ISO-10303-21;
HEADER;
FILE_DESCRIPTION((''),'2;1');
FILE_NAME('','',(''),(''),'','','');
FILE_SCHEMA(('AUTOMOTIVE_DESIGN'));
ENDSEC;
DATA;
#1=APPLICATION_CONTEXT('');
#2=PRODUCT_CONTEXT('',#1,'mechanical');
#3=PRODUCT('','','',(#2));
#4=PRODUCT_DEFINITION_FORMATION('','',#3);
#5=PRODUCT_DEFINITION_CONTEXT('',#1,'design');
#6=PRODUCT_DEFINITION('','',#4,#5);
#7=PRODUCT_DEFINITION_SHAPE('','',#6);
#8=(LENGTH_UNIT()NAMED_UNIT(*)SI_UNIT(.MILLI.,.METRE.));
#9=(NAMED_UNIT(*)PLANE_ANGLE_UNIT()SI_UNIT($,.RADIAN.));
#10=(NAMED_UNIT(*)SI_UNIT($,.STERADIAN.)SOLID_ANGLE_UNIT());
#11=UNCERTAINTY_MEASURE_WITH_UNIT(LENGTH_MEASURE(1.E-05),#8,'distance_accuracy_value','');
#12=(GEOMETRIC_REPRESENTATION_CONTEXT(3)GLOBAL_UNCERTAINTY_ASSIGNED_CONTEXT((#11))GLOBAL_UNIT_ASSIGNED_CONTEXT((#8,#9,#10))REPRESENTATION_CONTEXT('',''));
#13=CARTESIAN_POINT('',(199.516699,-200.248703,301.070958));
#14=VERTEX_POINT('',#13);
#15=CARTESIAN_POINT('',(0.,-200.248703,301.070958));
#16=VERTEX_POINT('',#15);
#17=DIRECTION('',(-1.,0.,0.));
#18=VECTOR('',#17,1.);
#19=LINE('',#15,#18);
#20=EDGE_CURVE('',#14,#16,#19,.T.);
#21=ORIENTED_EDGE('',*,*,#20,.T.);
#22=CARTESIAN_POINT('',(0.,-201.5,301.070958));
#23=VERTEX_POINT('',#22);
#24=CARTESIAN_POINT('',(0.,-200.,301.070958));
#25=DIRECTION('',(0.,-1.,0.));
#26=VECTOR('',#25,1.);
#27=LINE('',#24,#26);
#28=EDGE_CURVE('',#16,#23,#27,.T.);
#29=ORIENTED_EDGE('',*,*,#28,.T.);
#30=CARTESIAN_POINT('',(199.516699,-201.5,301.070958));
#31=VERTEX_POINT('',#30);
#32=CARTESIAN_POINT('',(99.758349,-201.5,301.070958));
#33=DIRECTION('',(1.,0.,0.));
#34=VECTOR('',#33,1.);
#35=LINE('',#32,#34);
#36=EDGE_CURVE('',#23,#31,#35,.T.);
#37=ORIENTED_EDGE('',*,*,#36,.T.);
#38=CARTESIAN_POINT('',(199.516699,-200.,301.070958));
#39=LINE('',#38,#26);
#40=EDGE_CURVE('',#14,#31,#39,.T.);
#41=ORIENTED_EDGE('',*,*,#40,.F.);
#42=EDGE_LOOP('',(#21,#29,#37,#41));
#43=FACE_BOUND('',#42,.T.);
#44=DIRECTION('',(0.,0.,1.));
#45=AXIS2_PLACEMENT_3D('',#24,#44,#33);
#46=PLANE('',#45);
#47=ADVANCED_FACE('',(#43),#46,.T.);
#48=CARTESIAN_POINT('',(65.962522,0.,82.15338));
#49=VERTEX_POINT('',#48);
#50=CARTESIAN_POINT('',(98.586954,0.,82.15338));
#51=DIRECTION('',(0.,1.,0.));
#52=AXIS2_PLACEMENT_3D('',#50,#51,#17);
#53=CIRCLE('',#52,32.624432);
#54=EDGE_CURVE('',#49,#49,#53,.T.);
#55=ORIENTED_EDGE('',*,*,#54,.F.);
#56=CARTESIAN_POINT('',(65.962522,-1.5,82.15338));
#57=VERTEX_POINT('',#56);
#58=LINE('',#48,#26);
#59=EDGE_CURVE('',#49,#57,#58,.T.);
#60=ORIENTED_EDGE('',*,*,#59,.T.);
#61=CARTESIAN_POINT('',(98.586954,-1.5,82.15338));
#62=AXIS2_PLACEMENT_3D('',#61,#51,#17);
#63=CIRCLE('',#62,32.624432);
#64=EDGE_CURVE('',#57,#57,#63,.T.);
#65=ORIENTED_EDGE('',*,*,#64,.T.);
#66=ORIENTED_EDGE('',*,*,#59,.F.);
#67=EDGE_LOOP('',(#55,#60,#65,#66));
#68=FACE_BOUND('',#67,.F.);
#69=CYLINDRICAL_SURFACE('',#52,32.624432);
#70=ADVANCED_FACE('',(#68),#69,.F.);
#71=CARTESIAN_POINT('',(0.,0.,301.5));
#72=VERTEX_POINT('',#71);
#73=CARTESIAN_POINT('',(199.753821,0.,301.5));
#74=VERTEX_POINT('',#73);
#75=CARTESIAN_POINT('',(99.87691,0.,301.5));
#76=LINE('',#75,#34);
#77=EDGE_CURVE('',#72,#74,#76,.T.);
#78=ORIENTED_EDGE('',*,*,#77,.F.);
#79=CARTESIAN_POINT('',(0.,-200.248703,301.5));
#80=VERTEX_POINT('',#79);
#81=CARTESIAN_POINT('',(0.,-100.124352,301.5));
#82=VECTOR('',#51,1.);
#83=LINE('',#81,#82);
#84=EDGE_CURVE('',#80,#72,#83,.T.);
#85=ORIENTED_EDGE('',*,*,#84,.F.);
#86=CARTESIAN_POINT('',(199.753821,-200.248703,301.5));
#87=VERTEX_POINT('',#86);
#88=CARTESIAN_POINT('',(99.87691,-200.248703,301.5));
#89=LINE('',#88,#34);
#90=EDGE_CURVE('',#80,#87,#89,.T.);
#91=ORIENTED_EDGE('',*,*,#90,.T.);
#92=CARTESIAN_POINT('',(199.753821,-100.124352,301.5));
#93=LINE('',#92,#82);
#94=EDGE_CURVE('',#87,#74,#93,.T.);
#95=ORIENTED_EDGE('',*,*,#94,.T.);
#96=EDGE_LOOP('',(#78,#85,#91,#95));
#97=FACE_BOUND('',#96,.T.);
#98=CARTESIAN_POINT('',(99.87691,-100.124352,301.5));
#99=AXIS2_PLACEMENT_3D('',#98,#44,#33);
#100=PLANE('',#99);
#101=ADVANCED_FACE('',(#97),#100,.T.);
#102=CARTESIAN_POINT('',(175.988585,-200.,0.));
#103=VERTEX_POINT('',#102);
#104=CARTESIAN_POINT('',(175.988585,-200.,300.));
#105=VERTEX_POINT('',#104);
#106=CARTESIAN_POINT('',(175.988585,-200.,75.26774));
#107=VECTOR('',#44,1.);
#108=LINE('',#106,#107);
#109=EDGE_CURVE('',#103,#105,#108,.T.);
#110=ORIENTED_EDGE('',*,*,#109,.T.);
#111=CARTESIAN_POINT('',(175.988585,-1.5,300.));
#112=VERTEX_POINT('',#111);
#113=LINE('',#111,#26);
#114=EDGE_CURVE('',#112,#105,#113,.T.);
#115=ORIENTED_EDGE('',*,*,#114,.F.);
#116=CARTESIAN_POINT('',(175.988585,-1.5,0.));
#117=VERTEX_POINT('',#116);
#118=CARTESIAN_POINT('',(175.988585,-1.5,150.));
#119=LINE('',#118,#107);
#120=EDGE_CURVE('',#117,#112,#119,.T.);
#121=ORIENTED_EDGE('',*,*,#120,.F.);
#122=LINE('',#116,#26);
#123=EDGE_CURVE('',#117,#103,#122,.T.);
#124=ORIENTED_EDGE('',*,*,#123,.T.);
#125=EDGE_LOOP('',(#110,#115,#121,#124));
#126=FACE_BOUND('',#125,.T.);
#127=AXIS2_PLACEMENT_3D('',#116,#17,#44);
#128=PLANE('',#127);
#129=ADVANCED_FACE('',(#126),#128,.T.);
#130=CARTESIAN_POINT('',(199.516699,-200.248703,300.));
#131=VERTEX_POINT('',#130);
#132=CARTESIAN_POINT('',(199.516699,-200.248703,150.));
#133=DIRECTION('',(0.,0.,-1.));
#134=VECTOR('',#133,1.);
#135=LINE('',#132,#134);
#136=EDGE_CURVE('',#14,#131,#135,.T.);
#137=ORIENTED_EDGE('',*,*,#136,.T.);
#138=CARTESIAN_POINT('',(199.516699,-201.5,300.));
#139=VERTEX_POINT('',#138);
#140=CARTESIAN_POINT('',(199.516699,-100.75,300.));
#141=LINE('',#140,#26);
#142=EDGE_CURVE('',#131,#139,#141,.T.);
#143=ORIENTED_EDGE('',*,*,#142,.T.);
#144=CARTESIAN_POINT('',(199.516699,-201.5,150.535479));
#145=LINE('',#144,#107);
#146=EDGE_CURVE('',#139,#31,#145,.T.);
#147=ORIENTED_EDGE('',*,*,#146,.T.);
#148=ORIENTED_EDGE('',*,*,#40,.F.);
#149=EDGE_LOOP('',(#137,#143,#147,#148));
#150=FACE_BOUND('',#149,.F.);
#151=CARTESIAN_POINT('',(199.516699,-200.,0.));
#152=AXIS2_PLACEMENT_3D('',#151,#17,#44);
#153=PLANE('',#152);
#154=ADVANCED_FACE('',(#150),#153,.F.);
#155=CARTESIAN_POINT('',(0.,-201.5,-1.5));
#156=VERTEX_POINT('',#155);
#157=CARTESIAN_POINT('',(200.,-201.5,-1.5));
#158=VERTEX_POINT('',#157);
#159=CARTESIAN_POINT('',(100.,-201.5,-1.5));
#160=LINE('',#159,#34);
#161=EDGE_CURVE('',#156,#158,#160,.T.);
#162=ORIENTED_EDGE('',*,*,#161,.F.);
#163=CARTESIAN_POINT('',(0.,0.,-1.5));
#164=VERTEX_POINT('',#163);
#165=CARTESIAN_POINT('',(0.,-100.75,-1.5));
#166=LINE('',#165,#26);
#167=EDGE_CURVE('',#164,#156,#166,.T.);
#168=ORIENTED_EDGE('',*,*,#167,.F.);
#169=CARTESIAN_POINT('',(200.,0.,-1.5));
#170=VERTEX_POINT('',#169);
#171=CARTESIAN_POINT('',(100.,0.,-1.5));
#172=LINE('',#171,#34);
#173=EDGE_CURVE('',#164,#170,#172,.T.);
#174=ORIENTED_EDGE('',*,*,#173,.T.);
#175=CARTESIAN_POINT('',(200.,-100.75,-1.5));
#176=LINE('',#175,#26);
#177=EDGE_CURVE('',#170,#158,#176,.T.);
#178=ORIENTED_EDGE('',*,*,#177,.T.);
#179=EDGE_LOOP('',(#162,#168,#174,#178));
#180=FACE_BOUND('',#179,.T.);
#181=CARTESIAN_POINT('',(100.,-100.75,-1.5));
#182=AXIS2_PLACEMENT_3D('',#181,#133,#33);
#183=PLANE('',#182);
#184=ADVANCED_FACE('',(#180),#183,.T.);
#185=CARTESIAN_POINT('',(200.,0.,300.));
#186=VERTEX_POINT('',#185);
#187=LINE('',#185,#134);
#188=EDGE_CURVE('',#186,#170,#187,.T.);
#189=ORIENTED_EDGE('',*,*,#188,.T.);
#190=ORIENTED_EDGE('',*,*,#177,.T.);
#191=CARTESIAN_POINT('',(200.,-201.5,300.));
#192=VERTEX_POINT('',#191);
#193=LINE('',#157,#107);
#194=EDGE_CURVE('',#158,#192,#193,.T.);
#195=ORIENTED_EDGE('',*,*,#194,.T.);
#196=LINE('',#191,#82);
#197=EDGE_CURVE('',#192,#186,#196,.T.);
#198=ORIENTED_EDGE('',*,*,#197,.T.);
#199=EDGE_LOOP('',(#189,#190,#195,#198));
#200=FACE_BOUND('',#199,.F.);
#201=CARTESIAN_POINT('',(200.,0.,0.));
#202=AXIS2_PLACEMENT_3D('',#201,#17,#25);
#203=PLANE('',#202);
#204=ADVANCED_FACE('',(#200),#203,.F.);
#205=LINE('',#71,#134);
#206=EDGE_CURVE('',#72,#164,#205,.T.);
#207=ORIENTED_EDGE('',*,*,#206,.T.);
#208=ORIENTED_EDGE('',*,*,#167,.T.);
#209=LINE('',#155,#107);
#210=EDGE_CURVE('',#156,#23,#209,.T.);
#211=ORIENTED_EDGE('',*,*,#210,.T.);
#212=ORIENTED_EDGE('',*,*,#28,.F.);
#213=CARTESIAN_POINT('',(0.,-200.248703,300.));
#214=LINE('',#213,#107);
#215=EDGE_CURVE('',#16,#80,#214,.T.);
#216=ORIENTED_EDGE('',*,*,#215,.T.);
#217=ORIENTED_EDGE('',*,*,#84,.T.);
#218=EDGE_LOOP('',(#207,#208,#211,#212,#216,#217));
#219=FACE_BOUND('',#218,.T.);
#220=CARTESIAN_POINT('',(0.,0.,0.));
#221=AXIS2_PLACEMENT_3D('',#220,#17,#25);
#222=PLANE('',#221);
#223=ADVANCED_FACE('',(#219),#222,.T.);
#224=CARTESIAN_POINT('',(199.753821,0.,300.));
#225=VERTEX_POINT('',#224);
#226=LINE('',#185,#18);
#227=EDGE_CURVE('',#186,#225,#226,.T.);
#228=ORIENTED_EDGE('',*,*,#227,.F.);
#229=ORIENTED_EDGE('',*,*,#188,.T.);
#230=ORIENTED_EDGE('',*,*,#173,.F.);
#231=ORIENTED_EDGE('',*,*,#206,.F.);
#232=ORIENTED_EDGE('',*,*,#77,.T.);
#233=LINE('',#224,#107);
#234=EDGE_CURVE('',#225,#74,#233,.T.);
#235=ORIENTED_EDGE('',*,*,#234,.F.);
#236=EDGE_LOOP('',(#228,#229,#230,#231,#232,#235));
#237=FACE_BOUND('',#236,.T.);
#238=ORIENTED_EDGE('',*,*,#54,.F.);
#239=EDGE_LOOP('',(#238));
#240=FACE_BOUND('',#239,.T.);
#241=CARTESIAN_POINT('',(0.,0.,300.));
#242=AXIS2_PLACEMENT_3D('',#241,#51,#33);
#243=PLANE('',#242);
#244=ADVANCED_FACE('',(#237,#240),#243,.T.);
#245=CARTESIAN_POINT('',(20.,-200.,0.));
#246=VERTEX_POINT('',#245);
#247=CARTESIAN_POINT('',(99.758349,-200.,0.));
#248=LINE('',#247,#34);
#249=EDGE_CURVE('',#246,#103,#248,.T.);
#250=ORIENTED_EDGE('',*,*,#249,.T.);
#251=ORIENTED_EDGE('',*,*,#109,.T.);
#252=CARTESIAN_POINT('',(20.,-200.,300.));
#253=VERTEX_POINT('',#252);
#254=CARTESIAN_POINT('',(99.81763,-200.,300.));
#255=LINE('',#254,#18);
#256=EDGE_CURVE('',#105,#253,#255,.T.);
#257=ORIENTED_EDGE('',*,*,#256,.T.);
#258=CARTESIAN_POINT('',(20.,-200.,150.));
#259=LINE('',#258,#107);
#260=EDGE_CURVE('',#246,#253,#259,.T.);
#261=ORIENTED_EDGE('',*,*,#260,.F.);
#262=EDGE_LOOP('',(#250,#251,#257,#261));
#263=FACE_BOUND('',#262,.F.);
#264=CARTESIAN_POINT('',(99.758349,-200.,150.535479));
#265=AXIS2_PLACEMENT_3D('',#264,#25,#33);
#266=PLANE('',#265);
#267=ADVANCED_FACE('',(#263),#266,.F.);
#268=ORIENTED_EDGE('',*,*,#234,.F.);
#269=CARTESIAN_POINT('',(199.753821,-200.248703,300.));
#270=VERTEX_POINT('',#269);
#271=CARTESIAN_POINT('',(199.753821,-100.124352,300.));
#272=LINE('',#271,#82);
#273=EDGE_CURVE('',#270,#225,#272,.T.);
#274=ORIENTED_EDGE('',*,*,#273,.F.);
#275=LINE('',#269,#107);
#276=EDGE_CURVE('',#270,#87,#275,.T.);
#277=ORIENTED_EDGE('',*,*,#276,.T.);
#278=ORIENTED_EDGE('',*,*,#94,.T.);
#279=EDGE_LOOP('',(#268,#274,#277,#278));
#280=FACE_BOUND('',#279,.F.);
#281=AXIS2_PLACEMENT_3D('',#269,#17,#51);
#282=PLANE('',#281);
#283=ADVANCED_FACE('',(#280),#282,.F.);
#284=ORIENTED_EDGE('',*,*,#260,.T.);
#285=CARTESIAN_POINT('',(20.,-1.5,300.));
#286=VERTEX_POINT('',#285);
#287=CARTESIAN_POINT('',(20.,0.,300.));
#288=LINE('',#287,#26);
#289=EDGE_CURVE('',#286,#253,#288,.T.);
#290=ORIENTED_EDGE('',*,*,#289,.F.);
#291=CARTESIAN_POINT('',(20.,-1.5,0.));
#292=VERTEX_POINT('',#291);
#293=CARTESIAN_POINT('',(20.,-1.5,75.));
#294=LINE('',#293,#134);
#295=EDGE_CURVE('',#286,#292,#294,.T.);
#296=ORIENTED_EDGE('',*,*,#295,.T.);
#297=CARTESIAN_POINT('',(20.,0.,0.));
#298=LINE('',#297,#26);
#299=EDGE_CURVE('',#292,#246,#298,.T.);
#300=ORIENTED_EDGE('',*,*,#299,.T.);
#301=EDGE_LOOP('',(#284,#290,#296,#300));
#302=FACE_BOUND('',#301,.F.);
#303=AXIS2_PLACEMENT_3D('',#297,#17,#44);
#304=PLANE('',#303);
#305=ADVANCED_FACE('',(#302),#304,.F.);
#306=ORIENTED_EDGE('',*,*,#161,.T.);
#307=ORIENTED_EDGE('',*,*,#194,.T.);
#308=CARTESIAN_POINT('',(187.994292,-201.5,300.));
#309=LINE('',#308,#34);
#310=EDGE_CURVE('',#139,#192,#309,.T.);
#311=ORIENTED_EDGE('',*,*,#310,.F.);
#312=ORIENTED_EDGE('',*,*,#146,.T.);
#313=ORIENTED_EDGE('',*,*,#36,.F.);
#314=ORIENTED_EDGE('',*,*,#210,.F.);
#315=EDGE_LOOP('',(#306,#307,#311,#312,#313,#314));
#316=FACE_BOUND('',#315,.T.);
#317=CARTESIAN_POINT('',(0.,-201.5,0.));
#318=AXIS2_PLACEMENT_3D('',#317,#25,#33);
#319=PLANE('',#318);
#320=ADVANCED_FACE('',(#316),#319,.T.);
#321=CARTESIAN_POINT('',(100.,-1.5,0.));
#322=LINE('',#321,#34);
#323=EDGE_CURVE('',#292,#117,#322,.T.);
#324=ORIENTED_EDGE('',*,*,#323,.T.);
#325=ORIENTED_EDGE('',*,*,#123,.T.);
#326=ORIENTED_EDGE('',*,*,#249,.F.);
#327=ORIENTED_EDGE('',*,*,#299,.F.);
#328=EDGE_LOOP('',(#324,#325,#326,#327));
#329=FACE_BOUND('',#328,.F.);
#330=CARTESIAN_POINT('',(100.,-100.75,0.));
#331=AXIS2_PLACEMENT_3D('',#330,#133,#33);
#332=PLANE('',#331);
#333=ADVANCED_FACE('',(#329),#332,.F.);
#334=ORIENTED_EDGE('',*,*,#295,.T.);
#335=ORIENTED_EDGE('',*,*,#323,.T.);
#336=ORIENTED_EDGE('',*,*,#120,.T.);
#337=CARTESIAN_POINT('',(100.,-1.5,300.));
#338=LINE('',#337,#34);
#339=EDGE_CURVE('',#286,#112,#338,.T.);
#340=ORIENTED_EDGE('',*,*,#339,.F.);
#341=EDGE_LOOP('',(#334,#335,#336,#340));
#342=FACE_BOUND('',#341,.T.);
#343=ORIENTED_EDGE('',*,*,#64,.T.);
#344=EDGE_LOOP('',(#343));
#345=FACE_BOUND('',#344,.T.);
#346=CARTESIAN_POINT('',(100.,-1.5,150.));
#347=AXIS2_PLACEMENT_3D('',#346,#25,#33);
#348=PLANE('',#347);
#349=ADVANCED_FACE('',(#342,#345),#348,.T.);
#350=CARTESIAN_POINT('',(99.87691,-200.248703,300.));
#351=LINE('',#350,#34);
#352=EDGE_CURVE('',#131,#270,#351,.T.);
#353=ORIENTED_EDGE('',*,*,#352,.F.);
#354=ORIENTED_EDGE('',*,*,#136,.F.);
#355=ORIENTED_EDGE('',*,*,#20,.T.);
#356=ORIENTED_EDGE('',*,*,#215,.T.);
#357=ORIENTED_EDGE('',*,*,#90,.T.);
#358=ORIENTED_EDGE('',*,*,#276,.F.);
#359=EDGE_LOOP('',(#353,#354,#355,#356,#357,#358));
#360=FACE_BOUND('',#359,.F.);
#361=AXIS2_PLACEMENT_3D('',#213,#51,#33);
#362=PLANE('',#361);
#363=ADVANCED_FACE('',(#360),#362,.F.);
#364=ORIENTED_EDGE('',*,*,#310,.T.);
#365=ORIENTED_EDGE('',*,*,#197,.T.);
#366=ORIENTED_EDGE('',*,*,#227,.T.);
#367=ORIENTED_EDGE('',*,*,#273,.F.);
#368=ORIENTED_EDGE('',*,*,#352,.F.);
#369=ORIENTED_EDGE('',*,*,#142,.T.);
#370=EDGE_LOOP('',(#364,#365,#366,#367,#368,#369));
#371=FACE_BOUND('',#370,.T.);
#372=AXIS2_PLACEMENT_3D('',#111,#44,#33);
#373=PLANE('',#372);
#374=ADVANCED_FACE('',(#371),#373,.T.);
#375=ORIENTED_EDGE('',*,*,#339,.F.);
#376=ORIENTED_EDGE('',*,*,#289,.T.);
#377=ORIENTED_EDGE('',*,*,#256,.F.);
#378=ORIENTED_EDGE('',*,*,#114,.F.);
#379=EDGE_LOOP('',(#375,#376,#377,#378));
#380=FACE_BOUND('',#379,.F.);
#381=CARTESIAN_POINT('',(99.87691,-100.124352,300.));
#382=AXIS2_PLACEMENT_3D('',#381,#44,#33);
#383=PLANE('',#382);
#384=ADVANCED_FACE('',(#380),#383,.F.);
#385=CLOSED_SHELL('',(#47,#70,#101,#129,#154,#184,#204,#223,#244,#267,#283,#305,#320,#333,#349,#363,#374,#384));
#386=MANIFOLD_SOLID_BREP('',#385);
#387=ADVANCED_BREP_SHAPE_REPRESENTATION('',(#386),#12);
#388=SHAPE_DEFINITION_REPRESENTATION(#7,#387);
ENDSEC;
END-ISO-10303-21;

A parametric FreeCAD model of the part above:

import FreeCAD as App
import Part
import Sketcher
Q = App.Units.Quantity

doc = App.newDocument("Part")
body = doc.addObject("PartDesign::Body", "Body")

# Sketch on XZ plane
sketch1 = body.newObject("Sketcher::SketchObject", "Sketch")
sketch1.AttachmentSupport = (doc.getObject("XZ_Plane"), [""])
sketch1.MapMode = "FlatFace"
sketch1.addGeometry([
    Part.LineSegment(App.Vector(0, 300, 0), App.Vector(0, 0, 0)),
    Part.LineSegment(App.Vector(0, 0, 0), App.Vector(200, 0, 0)),
    Part.LineSegment(App.Vector(200, 0, 0), App.Vector(200, 300, 0)),
    Part.LineSegment(App.Vector(200, 300, 0), App.Vector(0, 300, 0)),
], False)
sketch1.addConstraint([
    Sketcher.Constraint("Coincident", 0, 2, 1, 1),
    Sketcher.Constraint("Coincident", 1, 2, 2, 1),
    Sketcher.Constraint("Coincident", 2, 2, 3, 1),
    Sketcher.Constraint("Coincident", 3, 2, 0, 1),
    Sketcher.Constraint("Vertical", 0),
    Sketcher.Constraint("Horizontal", 1),
    Sketcher.Constraint("Vertical", 2),
    Sketcher.Constraint("Horizontal", 3),
    Sketcher.Constraint("Coincident", 0, 2, -1, 1),
    Sketcher.Constraint("DistanceX", 1, 1, 1, 2, Q("200 mm")),
    Sketcher.Constraint("DistanceY", 0, 2, 0, 1, Q("300 mm")),
])
pad1 = body.newObject("PartDesign::Pad", "Pad")
pad1.Profile = sketch1
pad1.Length = 1.5

# Sketch on XZ plane
sketch2 = body.newObject("Sketcher::SketchObject", "Sketch001")
sketch2.AttachmentSupport = (doc.getObject("XZ_Plane"), [""])
sketch2.MapMode = "FlatFace"
sketch2.addGeometry([
    Part.LineSegment(App.Vector(0, 300, 0), App.Vector(0, 0, 0)),
    Part.LineSegment(App.Vector(0, 0, 0), App.Vector(20, 0, 0)),
    Part.LineSegment(App.Vector(20, 0, 0), App.Vector(20, 300, 0)),
    Part.LineSegment(App.Vector(20, 300, 0), App.Vector(0, 300, 0)),
], False)
sketch2.addConstraint([
    Sketcher.Constraint("Coincident", 0, 2, 1, 1),
    Sketcher.Constraint("Coincident", 1, 2, 2, 1),
    Sketcher.Constraint("Coincident", 2, 2, 3, 1),
    Sketcher.Constraint("Coincident", 3, 2, 0, 1),
    Sketcher.Constraint("Vertical", 0),
    Sketcher.Constraint("Horizontal", 1),
    Sketcher.Constraint("Vertical", 2),
    Sketcher.Constraint("Horizontal", 3),
    Sketcher.Constraint("Coincident", 0, 2, -1, 1),
    Sketcher.Constraint("DistanceX", 1, 1, 1, 2, Q("20 mm")),
    Sketcher.Constraint("DistanceY", 0, 2, 0, 1, Q("300 mm")),
])
pad2 = body.newObject("PartDesign::Pad", "Pad001")
pad2.Profile = sketch2
pad2.Length = 200

# Sketch on XZ plane
sketch3 = body.newObject("Sketcher::SketchObject", "Sketch002")
sketch3.AttachmentSupport = (doc.getObject("XZ_Plane"), [""])
sketch3.MapMode = "FlatFace"
sketch3.AttachmentOffset = App.Placement(App.Vector(0, 0, 1.5), App.Rotation())
sketch3.addGeometry([
    Part.LineSegment(App.Vector(176, 300, 0), App.Vector(176, 0, 0)),
    Part.LineSegment(App.Vector(176, 0, 0), App.Vector(200, 0, 0)),
    Part.LineSegment(App.Vector(200, 0, 0), App.Vector(200, 300, 0)),
    Part.LineSegment(App.Vector(200, 300, 0), App.Vector(176, 300, 0)),
], False)
sketch3.addConstraint([
    Sketcher.Constraint("Coincident", 0, 2, 1, 1),
    Sketcher.Constraint("Coincident", 1, 2, 2, 1),
    Sketcher.Constraint("Coincident", 2, 2, 3, 1),
    Sketcher.Constraint("Coincident", 3, 2, 0, 1),
    Sketcher.Constraint("Vertical", 0),
    Sketcher.Constraint("Horizontal", 1),
    Sketcher.Constraint("Vertical", 2),
    Sketcher.Constraint("Horizontal", 3),
    Sketcher.Constraint("PointOnObject", 0, 2, -1),
    Sketcher.Constraint("DistanceY", 0, 2, 0, 1, Q("300 mm")),
    Sketcher.Constraint("DistanceX", -1, 1, 1, 2, Q("200 mm")),
    Sketcher.Constraint("DistanceX", 1, 1, 1, 2, Q("24.011415 mm")),
])
pad3 = body.newObject("PartDesign::Pad", "Pad002")
pad3.Profile = sketch3
pad3.Length = 200

# Sketch on XZ plane
sketch4 = body.newObject("Sketcher::SketchObject", "Sketch003")
sketch4.AttachmentSupport = (doc.getObject("XZ_Plane"), [""])
sketch4.MapMode = "FlatFace"
sketch4.AttachmentOffset = App.Placement(App.Vector(0, 0, 200), App.Rotation())
sketch4.addGeometry([
    Part.LineSegment(App.Vector(0, 301, 0), App.Vector(0, 0, 0)),
    Part.LineSegment(App.Vector(0, 0, 0), App.Vector(200, 0, 0)),
    Part.LineSegment(App.Vector(200, 0, 0), App.Vector(200, 301, 0)),
    Part.LineSegment(App.Vector(200, 301, 0), App.Vector(0, 301, 0)),
], False)
sketch4.addConstraint([
    Sketcher.Constraint("Coincident", 0, 2, 1, 1),
    Sketcher.Constraint("Coincident", 1, 2, 2, 1),
    Sketcher.Constraint("Coincident", 2, 2, 3, 1),
    Sketcher.Constraint("Coincident", 3, 2, 0, 1),
    Sketcher.Constraint("Vertical", 0),
    Sketcher.Constraint("Horizontal", 1),
    Sketcher.Constraint("Vertical", 2),
    Sketcher.Constraint("Horizontal", 3),
    Sketcher.Constraint("Coincident", 0, 2, -1, 1),
    Sketcher.Constraint("DistanceX", 1, 1, 1, 2, Q("199.516699 mm")),
    Sketcher.Constraint("DistanceY", 0, 2, 0, 1, Q("301.070958 mm")),
])
pad4 = body.newObject("PartDesign::Pad", "Pad003")
pad4.Profile = sketch4
pad4.Length = 1.5

# Sketch on XZ plane
sketch5 = body.newObject("Sketcher::SketchObject", "Sketch004")
sketch5.AttachmentSupport = (doc.getObject("XZ_Plane"), [""])
sketch5.MapMode = "FlatFace"
sketch5.addGeometry(Part.Circle(App.Vector(99, 82, 0), App.Vector(0, 0, 1), 33), False)
sketch5.addConstraint([
    Sketcher.Constraint("Diameter", 0, Q("65.248865 mm")),
    Sketcher.Constraint("DistanceY", -1, 1, 0, 3, Q("82.15338 mm")),
    Sketcher.Constraint("DistanceX", -1, 1, 0, 3, Q("98.586954 mm")),
])
pocket1 = body.newObject("PartDesign::Pocket", "Pocket")
pocket1.Profile = sketch5
pocket1.Length = 1.5
pocket1.Reversed = True

# Sketch on XY plane
sketch6 = body.newObject("Sketcher::SketchObject", "Sketch005")
sketch6.AttachmentSupport = (doc.getObject("XY_Plane"), [""])
sketch6.MapMode = "FlatFace"
sketch6.addGeometry([
    Part.LineSegment(App.Vector(0, -202, 0), App.Vector(0, 0, 0)),
    Part.LineSegment(App.Vector(0, 0, 0), App.Vector(200, 0, 0)),
    Part.LineSegment(App.Vector(200, 0, 0), App.Vector(200, -202, 0)),
    Part.LineSegment(App.Vector(200, -202, 0), App.Vector(0, -202, 0)),
], False)
sketch6.addConstraint([
    Sketcher.Constraint("Coincident", 0, 2, 1, 1),
    Sketcher.Constraint("Coincident", 1, 2, 2, 1),
    Sketcher.Constraint("Coincident", 2, 2, 3, 1),
    Sketcher.Constraint("Coincident", 3, 2, 0, 1),
    Sketcher.Constraint("Vertical", 0),
    Sketcher.Constraint("Horizontal", 1),
    Sketcher.Constraint("Vertical", 2),
    Sketcher.Constraint("Horizontal", 3),
    Sketcher.Constraint("Coincident", 0, 2, -1, 1),
    Sketcher.Constraint("DistanceX", 1, 1, 1, 2, Q("200 mm")),
    Sketcher.Constraint("DistanceY", 0, 1, 0, 2, Q("201.5 mm")),
])
pad5 = body.newObject("PartDesign::Pad", "Pad004")
pad5.Profile = sketch6
pad5.Length = 1.5
pad5.Reversed = True

# Sketch on XY plane
sketch7 = body.newObject("Sketcher::SketchObject", "Sketch006")
sketch7.AttachmentSupport = (doc.getObject("XY_Plane"), [""])
sketch7.MapMode = "FlatFace"
sketch7.AttachmentOffset = App.Placement(App.Vector(0, 0, 300), App.Rotation())
sketch7.addGeometry([
    Part.LineSegment(App.Vector(0, 0, 0), App.Vector(0, -200, 0)),
    Part.LineSegment(App.Vector(0, -200, 0), App.Vector(200, -200, 0)),
    Part.LineSegment(App.Vector(200, -200, 0), App.Vector(200, 0, 0)),
    Part.LineSegment(App.Vector(200, 0, 0), App.Vector(0, 0, 0)),
], False)
sketch7.addConstraint([
    Sketcher.Constraint("Coincident", 0, 2, 1, 1),
    Sketcher.Constraint("Coincident", 1, 2, 2, 1),
    Sketcher.Constraint("Coincident", 2, 2, 3, 1),
    Sketcher.Constraint("Coincident", 3, 2, 0, 1),
    Sketcher.Constraint("Vertical", 0),
    Sketcher.Constraint("Horizontal", 1),
    Sketcher.Constraint("Vertical", 2),
    Sketcher.Constraint("Horizontal", 3),
    Sketcher.Constraint("Coincident", 3, 2, -1, 1),
    Sketcher.Constraint("DistanceX", 1, 1, 1, 2, Q("199.753821 mm")),
    Sketcher.Constraint("DistanceY", 0, 2, 0, 1, Q("200.248703 mm")),
])
pad6 = body.newObject("PartDesign::Pad", "Pad005")
pad6.Profile = sketch7
pad6.Length = 1.5

doc.recompute()
